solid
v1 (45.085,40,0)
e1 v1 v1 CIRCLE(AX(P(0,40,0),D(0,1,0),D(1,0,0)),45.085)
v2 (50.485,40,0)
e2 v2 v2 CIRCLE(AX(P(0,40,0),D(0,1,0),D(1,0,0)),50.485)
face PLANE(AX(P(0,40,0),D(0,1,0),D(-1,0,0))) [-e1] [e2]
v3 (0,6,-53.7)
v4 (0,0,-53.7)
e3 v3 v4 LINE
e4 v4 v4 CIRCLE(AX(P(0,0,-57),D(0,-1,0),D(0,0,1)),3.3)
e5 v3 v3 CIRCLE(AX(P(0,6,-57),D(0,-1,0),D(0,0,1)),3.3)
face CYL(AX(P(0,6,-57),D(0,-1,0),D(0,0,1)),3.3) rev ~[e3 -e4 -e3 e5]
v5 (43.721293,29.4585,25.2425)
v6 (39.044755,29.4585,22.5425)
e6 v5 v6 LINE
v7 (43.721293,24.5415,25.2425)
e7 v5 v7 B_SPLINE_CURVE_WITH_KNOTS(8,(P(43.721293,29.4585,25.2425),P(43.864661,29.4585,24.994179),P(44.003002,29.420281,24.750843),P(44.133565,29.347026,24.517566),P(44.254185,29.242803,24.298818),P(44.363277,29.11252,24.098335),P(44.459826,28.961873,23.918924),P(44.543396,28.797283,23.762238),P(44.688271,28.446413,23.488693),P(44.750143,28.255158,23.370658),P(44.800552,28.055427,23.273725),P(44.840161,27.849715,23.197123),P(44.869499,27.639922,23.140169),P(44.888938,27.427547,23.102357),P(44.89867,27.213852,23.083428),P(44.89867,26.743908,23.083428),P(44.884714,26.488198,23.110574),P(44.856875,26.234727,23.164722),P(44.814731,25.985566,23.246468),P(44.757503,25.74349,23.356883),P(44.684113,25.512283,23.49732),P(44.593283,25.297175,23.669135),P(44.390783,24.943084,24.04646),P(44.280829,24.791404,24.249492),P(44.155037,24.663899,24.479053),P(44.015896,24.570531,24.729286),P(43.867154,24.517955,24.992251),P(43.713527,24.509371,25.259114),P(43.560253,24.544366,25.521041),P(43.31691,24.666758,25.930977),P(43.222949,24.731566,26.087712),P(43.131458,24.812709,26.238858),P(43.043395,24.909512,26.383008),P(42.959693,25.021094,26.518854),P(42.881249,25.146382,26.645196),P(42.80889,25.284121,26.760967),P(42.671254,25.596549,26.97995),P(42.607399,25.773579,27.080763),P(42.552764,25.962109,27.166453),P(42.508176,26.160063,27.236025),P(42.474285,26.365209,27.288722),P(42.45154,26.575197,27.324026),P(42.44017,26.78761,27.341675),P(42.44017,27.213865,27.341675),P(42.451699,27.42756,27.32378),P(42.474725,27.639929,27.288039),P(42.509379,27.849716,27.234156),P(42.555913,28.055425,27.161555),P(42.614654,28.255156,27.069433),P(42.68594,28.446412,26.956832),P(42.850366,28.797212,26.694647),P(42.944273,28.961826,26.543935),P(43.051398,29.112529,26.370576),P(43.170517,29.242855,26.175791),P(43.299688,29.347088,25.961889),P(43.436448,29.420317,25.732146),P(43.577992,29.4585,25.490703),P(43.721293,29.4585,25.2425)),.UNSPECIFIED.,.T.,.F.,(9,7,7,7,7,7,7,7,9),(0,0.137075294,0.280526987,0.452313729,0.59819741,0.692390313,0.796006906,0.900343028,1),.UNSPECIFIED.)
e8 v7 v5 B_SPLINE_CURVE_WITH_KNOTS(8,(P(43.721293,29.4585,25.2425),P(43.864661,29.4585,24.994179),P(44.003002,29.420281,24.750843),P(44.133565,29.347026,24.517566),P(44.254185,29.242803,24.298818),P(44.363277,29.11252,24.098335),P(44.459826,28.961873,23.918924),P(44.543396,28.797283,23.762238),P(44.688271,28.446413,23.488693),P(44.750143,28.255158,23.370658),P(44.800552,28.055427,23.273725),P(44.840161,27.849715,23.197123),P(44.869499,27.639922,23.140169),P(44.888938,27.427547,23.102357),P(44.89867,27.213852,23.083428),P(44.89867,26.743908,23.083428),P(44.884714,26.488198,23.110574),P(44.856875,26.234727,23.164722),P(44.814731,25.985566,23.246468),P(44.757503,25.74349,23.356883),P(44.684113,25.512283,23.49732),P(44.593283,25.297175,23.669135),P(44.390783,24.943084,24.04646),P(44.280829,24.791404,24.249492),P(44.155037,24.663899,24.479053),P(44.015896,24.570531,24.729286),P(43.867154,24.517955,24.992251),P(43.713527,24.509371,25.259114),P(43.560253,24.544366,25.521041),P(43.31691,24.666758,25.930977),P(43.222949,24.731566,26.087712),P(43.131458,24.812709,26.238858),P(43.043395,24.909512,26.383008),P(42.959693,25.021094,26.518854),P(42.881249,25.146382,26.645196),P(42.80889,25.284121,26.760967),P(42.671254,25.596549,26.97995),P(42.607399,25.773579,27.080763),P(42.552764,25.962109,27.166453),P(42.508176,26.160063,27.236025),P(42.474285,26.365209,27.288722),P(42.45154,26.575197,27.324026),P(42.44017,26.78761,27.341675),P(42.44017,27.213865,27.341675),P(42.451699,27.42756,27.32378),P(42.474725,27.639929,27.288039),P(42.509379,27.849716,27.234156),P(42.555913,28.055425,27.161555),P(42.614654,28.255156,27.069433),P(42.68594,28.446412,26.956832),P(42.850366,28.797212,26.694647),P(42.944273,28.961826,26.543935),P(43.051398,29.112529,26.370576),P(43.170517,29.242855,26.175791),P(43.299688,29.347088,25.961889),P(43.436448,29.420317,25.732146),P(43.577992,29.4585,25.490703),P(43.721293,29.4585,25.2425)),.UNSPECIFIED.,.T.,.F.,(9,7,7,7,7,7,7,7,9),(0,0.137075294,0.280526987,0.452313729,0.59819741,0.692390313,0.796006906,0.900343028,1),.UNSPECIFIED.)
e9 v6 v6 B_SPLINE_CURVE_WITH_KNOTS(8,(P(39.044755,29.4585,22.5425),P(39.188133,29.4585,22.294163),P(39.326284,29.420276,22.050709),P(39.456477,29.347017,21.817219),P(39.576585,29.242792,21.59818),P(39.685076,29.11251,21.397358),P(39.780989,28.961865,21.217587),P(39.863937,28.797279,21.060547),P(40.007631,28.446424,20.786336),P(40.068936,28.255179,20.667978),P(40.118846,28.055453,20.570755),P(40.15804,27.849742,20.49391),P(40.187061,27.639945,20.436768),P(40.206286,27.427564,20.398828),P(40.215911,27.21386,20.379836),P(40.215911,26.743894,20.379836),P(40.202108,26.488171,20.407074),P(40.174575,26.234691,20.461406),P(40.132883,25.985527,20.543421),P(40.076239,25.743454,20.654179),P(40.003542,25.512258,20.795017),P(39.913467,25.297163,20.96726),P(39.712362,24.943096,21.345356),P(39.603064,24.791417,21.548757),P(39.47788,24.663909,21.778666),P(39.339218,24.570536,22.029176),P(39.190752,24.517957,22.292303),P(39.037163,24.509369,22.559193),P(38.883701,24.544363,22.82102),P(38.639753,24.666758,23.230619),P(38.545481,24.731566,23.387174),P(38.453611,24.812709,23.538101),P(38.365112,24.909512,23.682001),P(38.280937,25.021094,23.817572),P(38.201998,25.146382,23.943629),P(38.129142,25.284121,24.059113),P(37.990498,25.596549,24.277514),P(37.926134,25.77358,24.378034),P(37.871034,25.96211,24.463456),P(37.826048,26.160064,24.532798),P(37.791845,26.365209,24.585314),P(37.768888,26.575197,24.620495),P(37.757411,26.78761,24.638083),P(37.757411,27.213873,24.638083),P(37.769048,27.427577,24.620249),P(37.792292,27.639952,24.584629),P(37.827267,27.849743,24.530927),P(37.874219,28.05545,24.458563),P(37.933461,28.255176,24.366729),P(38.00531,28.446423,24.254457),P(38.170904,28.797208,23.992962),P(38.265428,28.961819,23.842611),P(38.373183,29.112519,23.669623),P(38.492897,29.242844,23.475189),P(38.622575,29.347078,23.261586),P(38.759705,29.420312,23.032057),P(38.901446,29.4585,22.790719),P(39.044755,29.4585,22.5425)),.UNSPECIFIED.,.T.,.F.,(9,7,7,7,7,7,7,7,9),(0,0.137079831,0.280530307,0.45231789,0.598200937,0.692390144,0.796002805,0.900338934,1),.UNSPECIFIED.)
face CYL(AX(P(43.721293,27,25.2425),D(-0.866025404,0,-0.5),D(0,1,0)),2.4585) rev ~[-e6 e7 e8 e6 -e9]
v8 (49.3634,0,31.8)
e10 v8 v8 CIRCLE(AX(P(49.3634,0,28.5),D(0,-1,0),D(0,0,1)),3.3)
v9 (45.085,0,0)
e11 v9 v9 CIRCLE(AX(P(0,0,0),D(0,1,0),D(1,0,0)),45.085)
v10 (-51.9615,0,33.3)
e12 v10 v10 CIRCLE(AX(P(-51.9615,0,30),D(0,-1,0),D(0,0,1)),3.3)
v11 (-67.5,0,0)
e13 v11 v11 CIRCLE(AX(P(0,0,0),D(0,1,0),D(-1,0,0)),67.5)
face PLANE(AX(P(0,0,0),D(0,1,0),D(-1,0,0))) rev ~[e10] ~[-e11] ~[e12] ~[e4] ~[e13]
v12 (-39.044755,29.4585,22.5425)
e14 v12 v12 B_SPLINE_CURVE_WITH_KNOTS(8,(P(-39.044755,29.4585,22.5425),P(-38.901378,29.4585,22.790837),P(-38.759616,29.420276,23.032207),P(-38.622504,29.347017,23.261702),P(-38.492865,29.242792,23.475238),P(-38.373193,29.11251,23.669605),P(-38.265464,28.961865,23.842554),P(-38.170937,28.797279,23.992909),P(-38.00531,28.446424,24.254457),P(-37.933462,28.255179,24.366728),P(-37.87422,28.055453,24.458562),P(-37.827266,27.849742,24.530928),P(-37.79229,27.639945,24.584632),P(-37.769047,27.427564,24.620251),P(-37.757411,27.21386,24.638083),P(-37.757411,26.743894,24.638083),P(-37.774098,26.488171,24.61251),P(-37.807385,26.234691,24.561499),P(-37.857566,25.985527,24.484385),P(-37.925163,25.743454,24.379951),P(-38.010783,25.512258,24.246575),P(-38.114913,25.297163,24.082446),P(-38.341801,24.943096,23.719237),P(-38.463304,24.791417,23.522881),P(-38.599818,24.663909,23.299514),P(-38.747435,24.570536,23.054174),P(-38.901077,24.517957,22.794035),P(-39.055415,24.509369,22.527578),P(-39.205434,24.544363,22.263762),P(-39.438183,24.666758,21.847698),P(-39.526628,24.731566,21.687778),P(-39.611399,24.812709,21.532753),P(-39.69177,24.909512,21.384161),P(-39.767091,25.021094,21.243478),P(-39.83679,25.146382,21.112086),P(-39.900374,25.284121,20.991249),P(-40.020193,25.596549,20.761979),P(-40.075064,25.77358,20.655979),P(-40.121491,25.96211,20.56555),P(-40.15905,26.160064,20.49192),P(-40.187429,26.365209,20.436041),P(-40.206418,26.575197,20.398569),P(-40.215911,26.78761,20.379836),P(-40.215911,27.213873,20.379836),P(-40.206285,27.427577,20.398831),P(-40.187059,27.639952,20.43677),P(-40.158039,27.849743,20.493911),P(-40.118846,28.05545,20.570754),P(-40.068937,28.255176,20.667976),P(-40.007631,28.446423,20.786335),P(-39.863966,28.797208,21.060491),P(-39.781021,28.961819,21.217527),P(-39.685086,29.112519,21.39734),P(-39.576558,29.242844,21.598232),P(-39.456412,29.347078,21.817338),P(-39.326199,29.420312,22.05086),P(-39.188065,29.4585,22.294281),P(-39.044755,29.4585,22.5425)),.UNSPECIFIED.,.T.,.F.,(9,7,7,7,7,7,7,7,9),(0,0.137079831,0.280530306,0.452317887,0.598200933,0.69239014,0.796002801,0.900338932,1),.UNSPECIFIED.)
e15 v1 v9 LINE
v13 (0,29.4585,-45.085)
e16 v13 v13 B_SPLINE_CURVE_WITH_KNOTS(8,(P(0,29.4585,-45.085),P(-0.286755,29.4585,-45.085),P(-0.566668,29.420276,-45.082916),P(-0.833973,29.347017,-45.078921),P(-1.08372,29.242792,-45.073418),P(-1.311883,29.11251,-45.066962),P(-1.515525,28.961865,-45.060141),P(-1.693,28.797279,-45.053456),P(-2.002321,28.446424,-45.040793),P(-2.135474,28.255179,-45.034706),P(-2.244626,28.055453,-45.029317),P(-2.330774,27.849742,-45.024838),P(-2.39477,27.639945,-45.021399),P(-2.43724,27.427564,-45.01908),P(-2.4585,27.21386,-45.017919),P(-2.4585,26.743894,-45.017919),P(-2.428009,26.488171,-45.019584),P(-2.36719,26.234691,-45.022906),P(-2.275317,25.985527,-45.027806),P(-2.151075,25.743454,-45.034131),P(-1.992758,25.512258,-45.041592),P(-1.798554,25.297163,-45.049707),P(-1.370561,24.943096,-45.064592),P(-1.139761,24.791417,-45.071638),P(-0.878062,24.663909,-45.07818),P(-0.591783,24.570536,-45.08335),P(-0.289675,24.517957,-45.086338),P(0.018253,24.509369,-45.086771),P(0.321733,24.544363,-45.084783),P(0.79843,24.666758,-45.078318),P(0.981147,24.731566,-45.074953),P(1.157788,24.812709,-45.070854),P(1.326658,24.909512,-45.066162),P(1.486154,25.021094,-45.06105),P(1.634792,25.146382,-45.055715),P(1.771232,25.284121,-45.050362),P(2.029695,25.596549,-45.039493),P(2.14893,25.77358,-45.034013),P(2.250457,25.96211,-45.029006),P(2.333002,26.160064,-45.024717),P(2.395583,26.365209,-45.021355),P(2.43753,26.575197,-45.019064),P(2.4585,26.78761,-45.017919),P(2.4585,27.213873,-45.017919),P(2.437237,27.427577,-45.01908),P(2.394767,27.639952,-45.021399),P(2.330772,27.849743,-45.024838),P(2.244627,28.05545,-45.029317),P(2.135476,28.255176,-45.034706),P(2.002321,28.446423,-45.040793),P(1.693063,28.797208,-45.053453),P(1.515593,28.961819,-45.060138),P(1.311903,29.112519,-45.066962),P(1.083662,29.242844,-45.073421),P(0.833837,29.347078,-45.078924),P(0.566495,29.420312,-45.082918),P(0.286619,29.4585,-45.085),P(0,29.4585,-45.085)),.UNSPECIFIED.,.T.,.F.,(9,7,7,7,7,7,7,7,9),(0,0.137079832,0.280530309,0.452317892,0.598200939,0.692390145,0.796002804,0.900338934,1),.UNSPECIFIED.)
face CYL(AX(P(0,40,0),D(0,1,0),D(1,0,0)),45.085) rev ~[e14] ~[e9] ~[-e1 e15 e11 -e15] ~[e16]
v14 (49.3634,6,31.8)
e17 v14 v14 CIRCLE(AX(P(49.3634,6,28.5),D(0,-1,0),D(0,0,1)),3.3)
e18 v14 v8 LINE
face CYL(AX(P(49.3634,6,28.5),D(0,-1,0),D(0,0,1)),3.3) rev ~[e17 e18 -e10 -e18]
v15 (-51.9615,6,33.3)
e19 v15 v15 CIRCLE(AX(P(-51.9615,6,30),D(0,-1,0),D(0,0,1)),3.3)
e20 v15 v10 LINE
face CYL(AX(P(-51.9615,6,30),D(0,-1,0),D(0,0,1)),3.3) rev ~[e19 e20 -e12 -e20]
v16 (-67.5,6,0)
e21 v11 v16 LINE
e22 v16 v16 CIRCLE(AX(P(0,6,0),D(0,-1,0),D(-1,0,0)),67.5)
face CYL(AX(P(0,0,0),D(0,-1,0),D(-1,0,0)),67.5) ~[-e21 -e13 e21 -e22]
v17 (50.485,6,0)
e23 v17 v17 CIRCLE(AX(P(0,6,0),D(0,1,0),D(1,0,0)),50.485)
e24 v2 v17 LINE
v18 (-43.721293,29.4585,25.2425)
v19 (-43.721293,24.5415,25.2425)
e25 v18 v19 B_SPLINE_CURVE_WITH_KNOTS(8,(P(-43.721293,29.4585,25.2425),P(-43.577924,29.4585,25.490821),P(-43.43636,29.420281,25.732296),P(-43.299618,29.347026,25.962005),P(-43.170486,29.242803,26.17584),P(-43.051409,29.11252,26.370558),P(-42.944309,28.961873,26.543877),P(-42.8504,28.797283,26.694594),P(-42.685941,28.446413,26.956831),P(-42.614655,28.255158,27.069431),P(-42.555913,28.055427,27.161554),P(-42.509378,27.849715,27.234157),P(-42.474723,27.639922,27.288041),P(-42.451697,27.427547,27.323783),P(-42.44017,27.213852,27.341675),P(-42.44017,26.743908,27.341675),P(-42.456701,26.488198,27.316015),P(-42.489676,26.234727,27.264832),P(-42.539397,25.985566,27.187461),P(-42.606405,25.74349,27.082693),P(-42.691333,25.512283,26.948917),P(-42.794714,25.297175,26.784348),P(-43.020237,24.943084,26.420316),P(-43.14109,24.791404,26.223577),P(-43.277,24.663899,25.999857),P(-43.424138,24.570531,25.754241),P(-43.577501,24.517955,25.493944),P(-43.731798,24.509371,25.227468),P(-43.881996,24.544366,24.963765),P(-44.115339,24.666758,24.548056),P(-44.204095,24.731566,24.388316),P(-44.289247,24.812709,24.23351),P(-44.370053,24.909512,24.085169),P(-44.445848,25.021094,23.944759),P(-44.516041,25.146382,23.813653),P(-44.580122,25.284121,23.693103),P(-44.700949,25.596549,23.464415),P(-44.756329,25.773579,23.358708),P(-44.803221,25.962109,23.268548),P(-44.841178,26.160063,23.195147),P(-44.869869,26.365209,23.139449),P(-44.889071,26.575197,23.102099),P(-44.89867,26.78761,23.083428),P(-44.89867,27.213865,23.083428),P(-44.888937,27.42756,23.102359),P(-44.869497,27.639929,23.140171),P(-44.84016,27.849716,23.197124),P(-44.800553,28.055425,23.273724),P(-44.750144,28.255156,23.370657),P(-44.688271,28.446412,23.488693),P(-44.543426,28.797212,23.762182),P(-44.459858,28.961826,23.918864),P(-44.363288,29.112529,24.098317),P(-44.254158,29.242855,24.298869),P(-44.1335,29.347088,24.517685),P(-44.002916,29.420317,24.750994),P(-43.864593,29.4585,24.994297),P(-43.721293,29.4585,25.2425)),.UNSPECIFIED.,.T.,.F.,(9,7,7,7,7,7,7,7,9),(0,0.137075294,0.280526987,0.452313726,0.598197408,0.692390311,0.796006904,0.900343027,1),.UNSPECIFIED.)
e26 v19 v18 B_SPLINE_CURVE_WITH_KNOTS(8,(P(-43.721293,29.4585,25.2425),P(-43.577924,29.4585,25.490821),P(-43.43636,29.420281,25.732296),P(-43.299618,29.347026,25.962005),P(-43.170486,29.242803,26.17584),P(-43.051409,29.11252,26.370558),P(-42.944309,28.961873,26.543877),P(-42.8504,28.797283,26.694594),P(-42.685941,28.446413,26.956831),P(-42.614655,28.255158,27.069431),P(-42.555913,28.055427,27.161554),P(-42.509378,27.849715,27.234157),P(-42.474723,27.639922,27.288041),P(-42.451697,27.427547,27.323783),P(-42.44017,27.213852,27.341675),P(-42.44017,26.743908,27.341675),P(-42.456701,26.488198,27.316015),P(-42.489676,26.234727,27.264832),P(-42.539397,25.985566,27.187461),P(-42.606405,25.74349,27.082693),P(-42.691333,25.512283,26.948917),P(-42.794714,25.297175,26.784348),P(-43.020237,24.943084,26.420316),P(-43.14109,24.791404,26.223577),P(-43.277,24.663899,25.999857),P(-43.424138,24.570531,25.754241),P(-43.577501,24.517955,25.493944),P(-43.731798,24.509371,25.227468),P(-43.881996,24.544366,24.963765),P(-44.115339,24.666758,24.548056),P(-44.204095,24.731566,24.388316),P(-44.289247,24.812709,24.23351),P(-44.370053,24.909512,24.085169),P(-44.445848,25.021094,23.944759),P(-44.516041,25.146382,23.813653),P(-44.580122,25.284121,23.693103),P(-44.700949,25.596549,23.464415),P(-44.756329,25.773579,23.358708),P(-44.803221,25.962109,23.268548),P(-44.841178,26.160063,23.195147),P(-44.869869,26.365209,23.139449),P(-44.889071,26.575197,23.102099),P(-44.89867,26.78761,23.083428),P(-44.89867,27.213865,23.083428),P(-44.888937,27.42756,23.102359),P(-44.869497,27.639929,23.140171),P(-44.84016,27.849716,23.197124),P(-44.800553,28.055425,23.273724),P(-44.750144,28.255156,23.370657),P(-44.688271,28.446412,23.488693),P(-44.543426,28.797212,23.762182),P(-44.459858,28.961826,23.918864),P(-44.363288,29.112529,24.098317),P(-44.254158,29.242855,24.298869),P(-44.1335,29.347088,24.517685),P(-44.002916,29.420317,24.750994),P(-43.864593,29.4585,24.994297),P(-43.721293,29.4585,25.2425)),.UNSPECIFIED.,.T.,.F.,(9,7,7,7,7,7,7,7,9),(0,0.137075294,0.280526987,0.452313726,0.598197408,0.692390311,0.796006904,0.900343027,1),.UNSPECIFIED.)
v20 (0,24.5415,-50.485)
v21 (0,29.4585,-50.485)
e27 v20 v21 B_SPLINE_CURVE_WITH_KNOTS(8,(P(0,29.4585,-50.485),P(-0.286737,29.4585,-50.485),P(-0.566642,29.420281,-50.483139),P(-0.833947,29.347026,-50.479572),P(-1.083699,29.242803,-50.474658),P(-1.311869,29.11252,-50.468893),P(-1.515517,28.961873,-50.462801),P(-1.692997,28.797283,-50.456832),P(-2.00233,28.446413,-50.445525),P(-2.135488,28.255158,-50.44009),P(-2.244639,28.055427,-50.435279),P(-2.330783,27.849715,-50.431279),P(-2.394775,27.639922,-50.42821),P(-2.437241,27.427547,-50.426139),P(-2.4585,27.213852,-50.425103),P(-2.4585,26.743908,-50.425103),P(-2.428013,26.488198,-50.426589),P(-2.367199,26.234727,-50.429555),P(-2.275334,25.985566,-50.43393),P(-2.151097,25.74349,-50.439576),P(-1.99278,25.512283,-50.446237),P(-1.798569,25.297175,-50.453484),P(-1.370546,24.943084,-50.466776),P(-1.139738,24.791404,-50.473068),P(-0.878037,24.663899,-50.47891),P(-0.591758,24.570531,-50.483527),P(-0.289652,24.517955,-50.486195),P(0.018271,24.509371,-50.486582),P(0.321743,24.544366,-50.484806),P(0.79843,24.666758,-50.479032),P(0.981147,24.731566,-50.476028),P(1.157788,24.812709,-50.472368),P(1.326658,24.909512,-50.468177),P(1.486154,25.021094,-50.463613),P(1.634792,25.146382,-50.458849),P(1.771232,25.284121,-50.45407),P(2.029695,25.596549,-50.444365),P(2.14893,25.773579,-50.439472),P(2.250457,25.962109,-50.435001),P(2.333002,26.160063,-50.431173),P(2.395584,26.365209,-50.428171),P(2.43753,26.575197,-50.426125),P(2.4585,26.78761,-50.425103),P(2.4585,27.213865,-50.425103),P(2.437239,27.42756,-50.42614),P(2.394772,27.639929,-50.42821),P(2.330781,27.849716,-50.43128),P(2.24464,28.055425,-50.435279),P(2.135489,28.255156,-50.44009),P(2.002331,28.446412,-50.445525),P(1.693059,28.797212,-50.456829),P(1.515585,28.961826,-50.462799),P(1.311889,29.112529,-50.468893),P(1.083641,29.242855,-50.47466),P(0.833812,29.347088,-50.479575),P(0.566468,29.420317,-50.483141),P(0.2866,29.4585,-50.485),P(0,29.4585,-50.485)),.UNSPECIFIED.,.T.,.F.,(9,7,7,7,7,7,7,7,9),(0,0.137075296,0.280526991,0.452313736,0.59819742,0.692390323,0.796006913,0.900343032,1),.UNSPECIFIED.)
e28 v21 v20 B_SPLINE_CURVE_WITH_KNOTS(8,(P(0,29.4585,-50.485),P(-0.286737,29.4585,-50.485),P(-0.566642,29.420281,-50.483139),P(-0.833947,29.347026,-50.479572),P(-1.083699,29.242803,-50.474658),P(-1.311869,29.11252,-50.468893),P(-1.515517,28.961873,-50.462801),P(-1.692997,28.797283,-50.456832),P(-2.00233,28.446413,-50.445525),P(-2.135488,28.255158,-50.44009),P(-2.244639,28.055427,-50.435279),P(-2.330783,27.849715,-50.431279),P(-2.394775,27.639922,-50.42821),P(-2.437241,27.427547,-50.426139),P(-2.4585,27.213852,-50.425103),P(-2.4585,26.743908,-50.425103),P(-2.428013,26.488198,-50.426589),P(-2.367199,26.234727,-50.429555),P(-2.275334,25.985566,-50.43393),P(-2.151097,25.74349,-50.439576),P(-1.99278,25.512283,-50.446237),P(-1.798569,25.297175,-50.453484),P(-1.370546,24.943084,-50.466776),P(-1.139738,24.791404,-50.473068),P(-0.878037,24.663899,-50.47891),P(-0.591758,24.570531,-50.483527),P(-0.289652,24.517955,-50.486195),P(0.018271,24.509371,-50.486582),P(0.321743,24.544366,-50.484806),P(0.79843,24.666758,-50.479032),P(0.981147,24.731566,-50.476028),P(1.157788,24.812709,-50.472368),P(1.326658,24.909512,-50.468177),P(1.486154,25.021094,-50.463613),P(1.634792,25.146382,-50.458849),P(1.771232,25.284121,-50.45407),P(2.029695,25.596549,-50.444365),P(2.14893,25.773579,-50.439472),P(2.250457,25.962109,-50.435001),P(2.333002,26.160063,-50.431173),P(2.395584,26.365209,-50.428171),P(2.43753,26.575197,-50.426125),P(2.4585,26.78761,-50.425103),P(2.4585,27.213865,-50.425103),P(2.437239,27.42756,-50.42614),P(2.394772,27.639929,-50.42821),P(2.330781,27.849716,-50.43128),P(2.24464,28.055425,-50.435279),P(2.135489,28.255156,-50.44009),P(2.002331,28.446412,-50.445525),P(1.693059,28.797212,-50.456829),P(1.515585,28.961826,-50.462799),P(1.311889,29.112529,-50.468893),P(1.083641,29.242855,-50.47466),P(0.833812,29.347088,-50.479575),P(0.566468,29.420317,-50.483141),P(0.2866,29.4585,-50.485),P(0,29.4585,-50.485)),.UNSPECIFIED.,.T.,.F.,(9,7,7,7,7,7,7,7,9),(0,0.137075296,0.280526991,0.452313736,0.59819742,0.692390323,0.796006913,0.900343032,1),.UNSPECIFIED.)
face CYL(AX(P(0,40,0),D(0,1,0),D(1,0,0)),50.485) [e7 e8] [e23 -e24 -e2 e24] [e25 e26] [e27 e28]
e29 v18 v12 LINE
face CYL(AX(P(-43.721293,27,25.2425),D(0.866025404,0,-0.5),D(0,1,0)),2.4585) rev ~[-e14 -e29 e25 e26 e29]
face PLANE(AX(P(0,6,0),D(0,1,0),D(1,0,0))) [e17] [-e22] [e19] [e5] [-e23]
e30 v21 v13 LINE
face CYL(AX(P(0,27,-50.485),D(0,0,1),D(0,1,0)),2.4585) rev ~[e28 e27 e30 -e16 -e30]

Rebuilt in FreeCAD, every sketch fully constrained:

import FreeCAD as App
import Part
import Sketcher
from FreeCAD import Vector

doc = App.newDocument("Part")
body = doc.addObject("PartDesign::Body", "Body")

# Sketch on XZ plane
sketch1 = body.newObject("Sketcher::SketchObject", "Sketch")
sketch1.AttachmentSupport = (doc.getObject("XZ_Plane"), [""])
sketch1.MapMode = "FlatFace"
sketch1.addGeometry(Part.Circle(Vector(0, 0, 0), Vector(0, 0, 1), 68), False)
sketch1.addConstraint([
    Sketcher.Constraint("Coincident", 0, 3, -1, 1),
    Sketcher.Constraint("Diameter", 0, 135.0),
])
pad1 = body.newObject("PartDesign::Pad", "Pad")
pad1.Profile = sketch1
pad1.Length = 40
pad1.Reversed = True

# Sketch on XZ plane
sketch2 = body.newObject("Sketcher::SketchObject", "Sketch001")
sketch2.AttachmentSupport = (doc.getObject("XZ_Plane"), [""])
sketch2.MapMode = "FlatFace"
sketch2.AttachmentOffset = App.Placement(Vector(0, 0, -40), App.Rotation())
sketch2.addGeometry(Part.Circle(Vector(0, 0, 0), Vector(0, 0, 1), 45), False)
sketch2.addConstraint([
    Sketcher.Constraint("Coincident", 0, 3, -1, 1),
    Sketcher.Constraint("Diameter", 0, 90.17),
])
pocket1 = body.newObject("PartDesign::Pocket", "Pocket")
pocket1.Profile = sketch2
pocket1.Length = 101.6
pocket1.Reversed = True

# Sketch on XZ plane
sketch3 = body.newObject("Sketcher::SketchObject", "Sketch002")
sketch3.AttachmentSupport = (doc.getObject("XZ_Plane"), [""])
sketch3.MapMode = "FlatFace"
sketch3.AttachmentOffset = App.Placement(Vector(0, 0, -40), App.Rotation())
sketch3.addGeometry([
    Part.Circle(Vector(0, 0, 0), Vector(0, 0, 1), 68),
    Part.Circle(Vector(0, 0, 0), Vector(0, 0, 1), 50),
], False)
sketch3.addConstraint([
    Sketcher.Constraint("Coincident", 0, 3, -1, 1),
    Sketcher.Constraint("Coincident", 1, 3, -1, 1),
    Sketcher.Constraint("Diameter", 0, 135.0),
    Sketcher.Constraint("Diameter", 1, 100.97),
])
pocket2 = body.newObject("PartDesign::Pocket", "Pocket001")
pocket2.Profile = sketch3
pocket2.Length = 34
pocket2.Reversed = True

# Sketch on XY plane
sketch4 = body.newObject("Sketcher::SketchObject", "Sketch003")
sketch4.AttachmentSupport = (doc.getObject("XY_Plane"), [""])
sketch4.MapMode = "FlatFace"
sketch4.AttachmentOffset = App.Placement(Vector(0, 0, -50.485), App.Rotation())
sketch4.addGeometry(Part.Circle(Vector(0, 27, 0), Vector(0, 0, 1), 2.5), False)
sketch4.addConstraint([
    Sketcher.Constraint("PointOnObject", 0, 3, -2),
    Sketcher.Constraint("Diameter", 0, 4.917),
    Sketcher.Constraint("DistanceY", -1, 1, 0, 3, 27.0),
])
doc.recompute()
hole = body.newObject("PartDesign::Hole", "Hole")
hole.Profile = sketch4
hole.ThreadType = "None"
hole.Diameter = 4.917
hole.DepthType = "Dimension"
hole.Depth = 17.1
hole.DrillPoint = "Angled"
hole.DrillPointAngle = 118
hole.Reversed = True
doc.recompute()

polarpattern = body.newObject("PartDesign::PolarPattern", "PolarPattern")
polarpattern.Originals = [hole]
polarpattern.Axis = (doc.getObject("Y_Axis"), [""])
polarpattern.Angle = 120
polarpattern.Occurrences = 2
polarpattern.Reversed = True
body.Tip = polarpattern
doc.recompute()

polarpattern2 = body.newObject("PartDesign::PolarPattern", "PolarPattern001")
polarpattern2.Originals = [hole]
polarpattern2.Axis = (doc.getObject("Y_Axis"), [""])
polarpattern2.Angle = 120
polarpattern2.Occurrences = 2
body.Tip = polarpattern2

# Sketch on XZ plane
sketch5 = body.newObject("Sketcher::SketchObject", "Sketch004")
sketch5.AttachmentSupport = (doc.getObject("XZ_Plane"), [""])
sketch5.MapMode = "FlatFace"
sketch5.AttachmentOffset = App.Placement(Vector(0, 0, -6), App.Rotation())
sketch5.addGeometry([
    Part.Circle(Vector(0, -57, 0), Vector(0, 0, 1), 3.3),
    Part.Circle(Vector(49.4, 28.5, 0), Vector(0, 0, 1), 3.3),
    Part.Circle(Vector(-52, 30, 0), Vector(0, 0, 1), 3.3),
], False)
sketch5.addConstraint([
    Sketcher.Constraint("Equal", 0, 1),
    Sketcher.Constraint("Equal", 1, 2),
    Sketcher.Constraint("PointOnObject", 0, 3, -2),
    Sketcher.Constraint("Diameter", 0, 6.6),
    Sketcher.Constraint("DistanceY", 0, 3, -1, 1, 57.0),
    Sketcher.Constraint("DistanceY", -1, 1, 2, 3, 30.0),
    Sketcher.Constraint("DistanceY", -1, 1, 1, 3, 28.5),
    Sketcher.Constraint("DistanceX", 2, 3, 1, 3, 101.325),
    Sketcher.Constraint("DistanceX", -1, 1, 1, 3, 49.3634),
])
doc.recompute()
hole2 = body.newObject("PartDesign::Hole", "Hole001")
hole2.Profile = sketch5
hole2.ThreadType = "None"
hole2.Diameter = 6.6
hole2.DepthType = "ThroughAll"
hole2.Reversed = True

doc.recompute()
